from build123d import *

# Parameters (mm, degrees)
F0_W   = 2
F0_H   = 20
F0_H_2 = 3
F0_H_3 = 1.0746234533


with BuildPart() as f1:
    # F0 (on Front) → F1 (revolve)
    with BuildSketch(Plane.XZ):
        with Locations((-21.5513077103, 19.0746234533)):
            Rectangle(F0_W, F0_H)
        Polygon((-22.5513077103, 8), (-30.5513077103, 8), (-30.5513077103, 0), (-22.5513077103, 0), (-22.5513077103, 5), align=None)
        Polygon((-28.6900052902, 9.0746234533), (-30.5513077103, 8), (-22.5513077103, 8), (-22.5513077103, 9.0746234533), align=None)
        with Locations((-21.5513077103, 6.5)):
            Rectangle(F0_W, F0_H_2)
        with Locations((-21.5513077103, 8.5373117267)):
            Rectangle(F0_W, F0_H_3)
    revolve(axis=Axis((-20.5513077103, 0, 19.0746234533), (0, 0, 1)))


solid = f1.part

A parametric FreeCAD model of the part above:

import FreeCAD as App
import Part
import Sketcher
Q = App.Units.Quantity

doc = App.newDocument("Part")
body = doc.addObject("PartDesign::Body", "Body")

sketch1 = doc.addObject("Sketcher::SketchObject", "Sketch")
body.addObject(sketch1)
sketch1.AttachmentSupport = (doc.XZ_Plane, [""])
sketch1.MapMode = "FlatFace"
sketch1.addGeometry([
    Part.LineSegment(App.Vector(-22.6, 29.1, 0), App.Vector(-22.6, 9.1, 0)),
    Part.LineSegment(App.Vector(-22.6, 9.1, 0), App.Vector(-28.7, 9.1, 0)),
    Part.LineSegment(App.Vector(-28.7, 9.1, 0), App.Vector(-30.6, 8, 0)),
    Part.LineSegment(App.Vector(-30.6, 8, 0), App.Vector(-30.6, 0, 0)),
    Part.LineSegment(App.Vector(-30.6, 0, 0), App.Vector(-22.6, 0, 0)),
    Part.LineSegment(App.Vector(-22.6, 0, 0), App.Vector(-22.6, 5, 0)),
    Part.LineSegment(App.Vector(-22.6, 5, 0), App.Vector(-20.6, 5, 0)),
    Part.LineSegment(App.Vector(-20.6, 5, 0), App.Vector(-20.6, 29.1, 0)),
    Part.LineSegment(App.Vector(-20.6, 29.1, 0), App.Vector(-22.6, 29.1, 0)),
], False)
sketch1.addGeometry(Part.LineSegment(App.Vector(-20.6, 0, 0), App.Vector(-20.6, 29.1, 0)), True)
sketch1.addConstraint([
    Sketcher.Constraint("Coincident", 0, 2, 1, 1),
    Sketcher.Constraint("Coincident", 1, 2, 2, 1),
    Sketcher.Constraint("Coincident", 2, 2, 3, 1),
    Sketcher.Constraint("Coincident", 3, 2, 4, 1),
    Sketcher.Constraint("Coincident", 4, 2, 5, 1),
    Sketcher.Constraint("Coincident", 5, 2, 6, 1),
    Sketcher.Constraint("Coincident", 6, 2, 7, 1),
    Sketcher.Constraint("Coincident", 7, 2, 8, 1),
    Sketcher.Constraint("Coincident", 8, 2, 0, 1),
    Sketcher.Constraint("Vertical", 0),
    Sketcher.Constraint("Horizontal", 1),
    Sketcher.Constraint("Vertical", 3),
    Sketcher.Constraint("Horizontal", 4),
    Sketcher.Constraint("Vertical", 5),
    Sketcher.Constraint("Horizontal", 6),
    Sketcher.Constraint("Vertical", 7),
    Sketcher.Constraint("Horizontal", 8),
    Sketcher.Constraint("Vertical", 9),
    Sketcher.Constraint("Coincident", 9, 2, 7, 2),
    Sketcher.Constraint("PointOnObject", 3, 2, -1),
    Sketcher.Constraint("PointOnObject", 9, 1, -1),
    Sketcher.Constraint("Vertical", 0, 2, 4, 2),
    Sketcher.Constraint("Equal", 4, 3),
    Sketcher.Constraint("DistanceX", 4, 1, 4, 2, 8.0),
    Sketcher.Constraint("DistanceX", 6, 1, 6, 2, 2.0),
    Sketcher.Constraint("DistanceY", 0, 2, 0, 1, 20.0),
    Sketcher.Constraint("DistanceY", 5, 1, 5, 2, 5.0),
    Sketcher.Constraint("Angle", 2, Q("-150 deg")),
    Sketcher.Constraint("DistanceX", 1, 2, 1, 1, 6.138698),
    Sketcher.Constraint("DistanceX", 0, 2, -1, 1, 22.551308),
])
revolution = doc.addObject("PartDesign::Revolution", "Revolution")
body.addObject(revolution)
revolution.Profile = sketch1
revolution.ReferenceAxis = (sketch1, ["Axis0"])
revolution.Angle = 360

doc.recompute()
